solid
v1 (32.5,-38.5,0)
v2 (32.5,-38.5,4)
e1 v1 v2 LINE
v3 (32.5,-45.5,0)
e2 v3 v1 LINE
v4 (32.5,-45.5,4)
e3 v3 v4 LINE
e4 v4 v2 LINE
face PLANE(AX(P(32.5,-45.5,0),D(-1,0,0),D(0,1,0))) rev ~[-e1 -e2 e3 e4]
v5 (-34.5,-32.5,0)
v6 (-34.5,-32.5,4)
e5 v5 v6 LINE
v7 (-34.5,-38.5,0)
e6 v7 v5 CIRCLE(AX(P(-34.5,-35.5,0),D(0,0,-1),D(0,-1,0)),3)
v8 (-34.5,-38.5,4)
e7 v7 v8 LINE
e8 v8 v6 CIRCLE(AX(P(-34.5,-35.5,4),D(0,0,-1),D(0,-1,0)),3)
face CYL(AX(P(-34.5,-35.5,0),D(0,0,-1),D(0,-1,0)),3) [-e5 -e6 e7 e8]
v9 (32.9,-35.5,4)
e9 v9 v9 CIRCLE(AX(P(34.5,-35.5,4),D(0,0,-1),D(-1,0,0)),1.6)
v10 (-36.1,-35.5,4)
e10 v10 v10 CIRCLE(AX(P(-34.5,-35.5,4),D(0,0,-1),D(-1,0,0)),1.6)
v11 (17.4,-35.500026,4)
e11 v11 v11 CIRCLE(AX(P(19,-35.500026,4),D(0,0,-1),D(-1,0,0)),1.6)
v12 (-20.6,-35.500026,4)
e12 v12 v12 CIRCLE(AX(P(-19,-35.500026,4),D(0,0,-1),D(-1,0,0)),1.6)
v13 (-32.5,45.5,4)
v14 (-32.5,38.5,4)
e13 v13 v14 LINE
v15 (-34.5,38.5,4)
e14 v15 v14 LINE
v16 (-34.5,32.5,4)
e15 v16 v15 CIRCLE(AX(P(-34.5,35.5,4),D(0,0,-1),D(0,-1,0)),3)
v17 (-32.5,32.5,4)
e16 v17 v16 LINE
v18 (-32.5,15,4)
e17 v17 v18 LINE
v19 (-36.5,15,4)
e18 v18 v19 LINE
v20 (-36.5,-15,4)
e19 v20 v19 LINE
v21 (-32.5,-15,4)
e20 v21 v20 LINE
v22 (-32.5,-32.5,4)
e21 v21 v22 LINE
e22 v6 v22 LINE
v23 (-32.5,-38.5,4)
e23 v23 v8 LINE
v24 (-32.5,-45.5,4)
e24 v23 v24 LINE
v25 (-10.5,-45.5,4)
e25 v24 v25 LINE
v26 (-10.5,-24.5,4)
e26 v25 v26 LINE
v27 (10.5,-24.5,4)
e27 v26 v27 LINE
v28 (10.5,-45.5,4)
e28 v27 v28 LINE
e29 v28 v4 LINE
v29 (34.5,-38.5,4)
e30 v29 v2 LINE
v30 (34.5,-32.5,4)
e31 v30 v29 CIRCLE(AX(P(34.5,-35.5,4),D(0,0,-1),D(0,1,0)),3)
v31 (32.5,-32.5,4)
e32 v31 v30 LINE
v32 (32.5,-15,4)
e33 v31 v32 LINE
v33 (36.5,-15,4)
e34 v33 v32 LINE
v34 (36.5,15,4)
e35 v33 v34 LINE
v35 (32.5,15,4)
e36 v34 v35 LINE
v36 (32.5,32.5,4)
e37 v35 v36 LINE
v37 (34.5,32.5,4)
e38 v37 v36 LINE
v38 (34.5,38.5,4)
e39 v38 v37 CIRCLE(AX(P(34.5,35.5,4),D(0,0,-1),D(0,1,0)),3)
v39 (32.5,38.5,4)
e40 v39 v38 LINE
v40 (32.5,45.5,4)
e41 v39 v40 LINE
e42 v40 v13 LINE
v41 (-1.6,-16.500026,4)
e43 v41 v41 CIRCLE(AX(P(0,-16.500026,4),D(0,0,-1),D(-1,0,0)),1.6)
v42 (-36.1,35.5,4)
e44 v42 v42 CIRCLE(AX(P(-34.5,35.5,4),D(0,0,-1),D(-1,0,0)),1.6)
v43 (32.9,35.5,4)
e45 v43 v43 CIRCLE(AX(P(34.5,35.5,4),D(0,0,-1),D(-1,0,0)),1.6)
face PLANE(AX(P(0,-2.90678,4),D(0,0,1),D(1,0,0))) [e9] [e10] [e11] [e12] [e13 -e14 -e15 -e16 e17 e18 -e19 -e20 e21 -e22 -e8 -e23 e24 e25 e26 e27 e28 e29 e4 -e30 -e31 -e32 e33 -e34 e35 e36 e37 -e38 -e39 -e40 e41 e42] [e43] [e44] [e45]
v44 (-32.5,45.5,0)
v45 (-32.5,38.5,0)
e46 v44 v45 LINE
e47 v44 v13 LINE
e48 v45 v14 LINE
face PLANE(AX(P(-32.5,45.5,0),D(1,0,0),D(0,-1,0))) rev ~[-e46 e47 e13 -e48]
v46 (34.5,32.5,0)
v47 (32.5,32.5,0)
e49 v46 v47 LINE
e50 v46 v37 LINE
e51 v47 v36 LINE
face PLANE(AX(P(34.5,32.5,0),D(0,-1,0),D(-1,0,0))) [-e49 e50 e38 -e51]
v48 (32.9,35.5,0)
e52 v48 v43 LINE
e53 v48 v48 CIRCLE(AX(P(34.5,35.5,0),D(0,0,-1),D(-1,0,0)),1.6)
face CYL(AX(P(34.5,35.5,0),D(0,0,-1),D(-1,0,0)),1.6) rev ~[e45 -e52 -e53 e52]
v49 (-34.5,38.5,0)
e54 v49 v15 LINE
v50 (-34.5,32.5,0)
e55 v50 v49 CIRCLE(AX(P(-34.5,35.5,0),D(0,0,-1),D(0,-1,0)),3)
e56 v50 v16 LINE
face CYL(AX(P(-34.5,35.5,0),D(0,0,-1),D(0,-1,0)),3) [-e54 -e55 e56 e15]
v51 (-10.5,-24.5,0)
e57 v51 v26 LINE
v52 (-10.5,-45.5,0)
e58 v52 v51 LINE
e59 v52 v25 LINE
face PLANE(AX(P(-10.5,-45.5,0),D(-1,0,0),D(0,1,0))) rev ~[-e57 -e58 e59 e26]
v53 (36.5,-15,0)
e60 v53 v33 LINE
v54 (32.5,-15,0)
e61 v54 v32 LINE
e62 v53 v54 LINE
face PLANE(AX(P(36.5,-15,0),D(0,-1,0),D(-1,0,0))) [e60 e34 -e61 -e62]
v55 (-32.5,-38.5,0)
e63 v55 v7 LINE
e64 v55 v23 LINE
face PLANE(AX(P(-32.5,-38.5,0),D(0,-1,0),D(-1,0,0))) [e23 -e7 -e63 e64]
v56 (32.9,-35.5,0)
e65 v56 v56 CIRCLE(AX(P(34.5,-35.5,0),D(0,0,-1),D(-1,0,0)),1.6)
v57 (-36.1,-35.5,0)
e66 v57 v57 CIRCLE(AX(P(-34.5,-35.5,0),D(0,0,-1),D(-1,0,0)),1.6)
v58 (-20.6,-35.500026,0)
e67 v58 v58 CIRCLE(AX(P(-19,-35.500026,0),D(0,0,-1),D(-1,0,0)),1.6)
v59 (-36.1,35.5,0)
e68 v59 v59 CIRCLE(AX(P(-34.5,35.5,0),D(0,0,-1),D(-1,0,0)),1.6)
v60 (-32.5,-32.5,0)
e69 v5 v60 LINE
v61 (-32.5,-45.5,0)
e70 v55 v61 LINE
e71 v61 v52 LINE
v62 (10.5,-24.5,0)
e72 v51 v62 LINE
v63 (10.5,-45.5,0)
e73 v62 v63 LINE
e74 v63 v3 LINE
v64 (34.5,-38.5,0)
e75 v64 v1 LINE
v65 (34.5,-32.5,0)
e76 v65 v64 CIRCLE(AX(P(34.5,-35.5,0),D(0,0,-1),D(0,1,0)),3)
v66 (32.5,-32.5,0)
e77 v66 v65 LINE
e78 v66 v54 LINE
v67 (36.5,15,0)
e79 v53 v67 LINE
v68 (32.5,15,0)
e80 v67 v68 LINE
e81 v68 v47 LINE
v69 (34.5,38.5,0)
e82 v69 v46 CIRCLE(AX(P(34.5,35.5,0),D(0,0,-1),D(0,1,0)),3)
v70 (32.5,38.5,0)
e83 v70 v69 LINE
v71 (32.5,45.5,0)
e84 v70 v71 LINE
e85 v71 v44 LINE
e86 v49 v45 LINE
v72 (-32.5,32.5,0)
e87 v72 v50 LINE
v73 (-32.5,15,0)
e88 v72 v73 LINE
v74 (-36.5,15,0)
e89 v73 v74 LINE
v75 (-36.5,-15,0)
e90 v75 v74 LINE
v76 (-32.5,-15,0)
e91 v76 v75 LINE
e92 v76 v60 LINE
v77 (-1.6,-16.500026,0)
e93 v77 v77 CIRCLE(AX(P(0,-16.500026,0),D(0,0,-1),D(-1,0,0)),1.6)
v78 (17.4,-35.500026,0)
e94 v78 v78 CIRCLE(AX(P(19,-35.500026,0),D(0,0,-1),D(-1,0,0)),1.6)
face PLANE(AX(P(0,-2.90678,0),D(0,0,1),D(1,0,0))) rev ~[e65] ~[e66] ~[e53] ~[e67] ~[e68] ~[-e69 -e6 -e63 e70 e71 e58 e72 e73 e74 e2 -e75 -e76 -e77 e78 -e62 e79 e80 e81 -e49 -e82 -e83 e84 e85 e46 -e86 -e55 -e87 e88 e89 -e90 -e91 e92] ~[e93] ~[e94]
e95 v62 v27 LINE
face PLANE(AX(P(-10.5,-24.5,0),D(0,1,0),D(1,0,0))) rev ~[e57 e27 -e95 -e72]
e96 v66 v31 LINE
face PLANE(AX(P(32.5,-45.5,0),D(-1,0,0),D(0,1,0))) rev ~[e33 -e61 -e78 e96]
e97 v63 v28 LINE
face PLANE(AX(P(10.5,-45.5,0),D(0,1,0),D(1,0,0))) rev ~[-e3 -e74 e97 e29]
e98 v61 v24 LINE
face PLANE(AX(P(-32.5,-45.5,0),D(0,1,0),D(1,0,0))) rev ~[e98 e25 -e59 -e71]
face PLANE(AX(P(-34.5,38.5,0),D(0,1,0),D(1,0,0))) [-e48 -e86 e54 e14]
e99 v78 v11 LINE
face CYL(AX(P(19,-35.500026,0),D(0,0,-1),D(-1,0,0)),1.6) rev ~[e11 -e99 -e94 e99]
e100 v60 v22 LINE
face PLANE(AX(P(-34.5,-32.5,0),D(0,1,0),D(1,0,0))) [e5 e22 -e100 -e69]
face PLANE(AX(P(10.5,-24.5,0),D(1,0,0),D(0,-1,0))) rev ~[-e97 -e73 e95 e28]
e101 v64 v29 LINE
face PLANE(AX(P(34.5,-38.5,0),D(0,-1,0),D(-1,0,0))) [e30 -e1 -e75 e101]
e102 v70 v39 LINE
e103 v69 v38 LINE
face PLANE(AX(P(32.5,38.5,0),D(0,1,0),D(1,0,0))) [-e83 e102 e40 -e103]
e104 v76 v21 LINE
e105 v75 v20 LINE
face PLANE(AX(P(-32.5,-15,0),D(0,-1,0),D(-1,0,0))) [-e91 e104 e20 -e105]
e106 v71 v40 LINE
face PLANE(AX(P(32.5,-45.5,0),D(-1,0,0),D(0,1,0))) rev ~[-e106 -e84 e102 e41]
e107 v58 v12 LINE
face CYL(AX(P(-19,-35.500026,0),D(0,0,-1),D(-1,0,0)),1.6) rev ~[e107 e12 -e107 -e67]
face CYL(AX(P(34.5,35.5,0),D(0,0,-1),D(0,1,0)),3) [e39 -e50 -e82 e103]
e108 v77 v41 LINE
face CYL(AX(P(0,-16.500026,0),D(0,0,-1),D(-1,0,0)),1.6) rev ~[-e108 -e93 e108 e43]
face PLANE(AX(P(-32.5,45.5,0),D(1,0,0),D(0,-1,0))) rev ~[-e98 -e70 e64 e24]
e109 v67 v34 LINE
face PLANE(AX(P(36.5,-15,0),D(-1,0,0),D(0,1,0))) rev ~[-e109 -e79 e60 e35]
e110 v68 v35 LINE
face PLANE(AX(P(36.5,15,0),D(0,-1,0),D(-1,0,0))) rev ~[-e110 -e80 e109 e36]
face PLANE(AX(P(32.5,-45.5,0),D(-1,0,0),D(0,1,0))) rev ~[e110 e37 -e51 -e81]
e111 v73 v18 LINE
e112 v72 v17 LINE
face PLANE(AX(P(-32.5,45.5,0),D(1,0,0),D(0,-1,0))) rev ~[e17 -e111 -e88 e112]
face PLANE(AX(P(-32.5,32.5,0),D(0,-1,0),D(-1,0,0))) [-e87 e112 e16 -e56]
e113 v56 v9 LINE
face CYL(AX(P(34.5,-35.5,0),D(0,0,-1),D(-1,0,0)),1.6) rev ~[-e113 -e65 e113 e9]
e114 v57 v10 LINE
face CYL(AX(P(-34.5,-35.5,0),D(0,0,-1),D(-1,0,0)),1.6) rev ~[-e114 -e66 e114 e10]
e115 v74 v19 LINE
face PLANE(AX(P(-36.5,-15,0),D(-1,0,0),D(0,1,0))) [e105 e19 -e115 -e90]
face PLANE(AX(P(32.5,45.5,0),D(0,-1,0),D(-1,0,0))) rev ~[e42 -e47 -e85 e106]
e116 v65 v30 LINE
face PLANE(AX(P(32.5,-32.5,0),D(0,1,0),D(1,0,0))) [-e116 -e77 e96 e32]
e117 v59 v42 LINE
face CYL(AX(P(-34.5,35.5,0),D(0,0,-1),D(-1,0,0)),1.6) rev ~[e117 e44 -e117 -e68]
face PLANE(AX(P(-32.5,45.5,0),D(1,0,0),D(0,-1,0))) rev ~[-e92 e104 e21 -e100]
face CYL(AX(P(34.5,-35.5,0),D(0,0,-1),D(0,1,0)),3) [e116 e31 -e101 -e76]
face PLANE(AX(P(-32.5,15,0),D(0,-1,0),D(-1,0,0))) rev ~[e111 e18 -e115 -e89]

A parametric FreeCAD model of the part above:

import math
import FreeCAD as App
import Part
import Sketcher

V = App.Vector

doc = App.newDocument("Part")
body = doc.addObject("PartDesign::Body", "Body")

sketch1 = body.newObject("Sketcher::SketchObject", "Sketch")
sketch1.AttachmentSupport = (doc.getObject("XY_Plane"), [""])
sketch1.MapMode = "FlatFace"
sketch1.addGeometry(Part.LineSegment(V(-10.5, -45.5, 0), V(-10.5, -24.5, 0)), False)
sketch1.addGeometry(Part.LineSegment(V(-10.5, -24.5, 0), V(10.5, -24.5, 0)), False)
sketch1.addGeometry(Part.LineSegment(V(10.5, -24.5, 0), V(10.5, -45.5, 0)), False)
sketch1.addGeometry(Part.LineSegment(V(10.5, -45.5, 0), V(32.5, -45.5, 0)), False)
sketch1.addGeometry(Part.LineSegment(V(32.5, -45.5, 0), V(32.5, 45.5, 0)), False)
sketch1.addGeometry(Part.LineSegment(V(32.5, 45.5, 0), V(-32.5, 45.5, 0)), False)
sketch1.addGeometry(Part.LineSegment(V(-32.5, 45.5, 0), V(-32.5, -45.5, 0)), False)
sketch1.addGeometry(Part.LineSegment(V(-32.5, -45.5, 0), V(-10.5, -45.5, 0)), False)
sketch1.addConstraint(Sketcher.Constraint("Coincident", 0, 2, 1, 1))
sketch1.addConstraint(Sketcher.Constraint("Coincident", 1, 2, 2, 1))
sketch1.addConstraint(Sketcher.Constraint("Coincident", 2, 2, 3, 1))
sketch1.addConstraint(Sketcher.Constraint("Coincident", 3, 2, 4, 1))
sketch1.addConstraint(Sketcher.Constraint("Coincident", 4, 2, 5, 1))
sketch1.addConstraint(Sketcher.Constraint("Coincident", 5, 2, 6, 1))
sketch1.addConstraint(Sketcher.Constraint("Coincident", 6, 2, 7, 1))
sketch1.addConstraint(Sketcher.Constraint("Coincident", 7, 2, 0, 1))
sketch1.addConstraint(Sketcher.Constraint("Vertical", 0))
sketch1.addConstraint(Sketcher.Constraint("Horizontal", 1))
sketch1.addConstraint(Sketcher.Constraint("Vertical", 2))
sketch1.addConstraint(Sketcher.Constraint("Horizontal", 3))
sketch1.addConstraint(Sketcher.Constraint("Vertical", 4))
sketch1.addConstraint(Sketcher.Constraint("Horizontal", 5))
sketch1.addConstraint(Sketcher.Constraint("Vertical", 6))
sketch1.addConstraint(Sketcher.Constraint("Horizontal", 7))
sketch1.addConstraint(Sketcher.Constraint("Symmetric", 3, 2, 5, 2, -1, 1))
sketch1.addConstraint(Sketcher.Constraint("Symmetric", 2, 2, 7, 2, -2))
sketch1.addConstraint(Sketcher.Constraint("Equal", 1, 0))
sketch1.addConstraint(Sketcher.Constraint("DistanceX", 1, 1, 1, 2, 21.0))
sketch1.addConstraint(Sketcher.Constraint("DistanceX", 3, 1, 3, 2, 22.0))
sketch1.addConstraint(Sketcher.Constraint("DistanceY", 4, 1, 4, 2, 91.0))
pad1 = body.newObject("PartDesign::Pad", "Pad")
pad1.Profile = sketch1
pad1.Length = 4

sketch2 = body.newObject("Sketcher::SketchObject", "Sketch001")
sketch2.AttachmentSupport = (doc.getObject("XY_Plane"), [""])
sketch2.MapMode = "FlatFace"
sketch2.addGeometry(Part.Circle(V(-19, -35.500026, 0), V(0, 0, 1), 1.6), False)
sketch2.addGeometry(Part.Circle(V(0, -16.500026, 0), V(0, 0, 1), 1.6), False)
sketch2.addGeometry(Part.Circle(V(19, -35.500026, 0), V(0, 0, 1), 1.6), False)
sketch2.addConstraint(Sketcher.Constraint("Equal", 0, 1))
sketch2.addConstraint(Sketcher.Constraint("Equal", 1, 2))
sketch2.addConstraint(Sketcher.Constraint("Symmetric", 0, 3, 2, 3, -2))
sketch2.addConstraint(Sketcher.Constraint("PointOnObject", 1, 3, -2))
sketch2.addConstraint(Sketcher.Constraint("Diameter", 0, 3.2))
sketch2.addConstraint(Sketcher.Constraint("DistanceX", 0, 3, -1, 1, 19.0))
sketch2.addConstraint(Sketcher.Constraint("DistanceY", 0, 3, 1, 3, 19.0))
sketch2.addConstraint(Sketcher.Constraint("DistanceY", 0, 3, -1, 1, 35.500026))
pocket1 = body.newObject("PartDesign::Pocket", "Pocket")
pocket1.Profile = sketch2
pocket1.Type = "ThroughAll"
pocket1.Reversed = True

sketch3 = body.newObject("Sketcher::SketchObject", "Sketch002")
sketch3.AttachmentSupport = (doc.getObject("XY_Plane"), [""])
sketch3.MapMode = "FlatFace"
sketch3.addGeometry(Part.LineSegment(V(-34.5, 38.5, 0), V(-32.5, 38.5, 0)), False)
sketch3.addGeometry(Part.LineSegment(V(-32.5, 38.5, 0), V(-32.5, 32.5, 0)), False)
sketch3.addGeometry(Part.LineSegment(V(-32.5, 32.5, 0), V(-34.5, 32.5, 0)), False)
sketch3.addGeometry(Part.ArcOfCircle(Part.Circle(V(-34.5, 35.5, 0), V(0, 0, 1), 3), math.radians(90), math.radians(270)), False)
sketch3.addGeometry(Part.Circle(V(-34.5, 35.5, 0), V(0, 0, 1), 1.6), False)
sketch3.addGeometry(Part.LineSegment(V(-34.5, -32.5, 0), V(-32.5, -32.5, 0)), False)
sketch3.addGeometry(Part.LineSegment(V(-32.5, -32.5, 0), V(-32.5, -38.5, 0)), False)
sketch3.addGeometry(Part.LineSegment(V(-32.5, -38.5, 0), V(-34.5, -38.5, 0)), False)
sketch3.addGeometry(Part.ArcOfCircle(Part.Circle(V(-34.5, -35.5, 0), V(0, 0, 1), 3), math.radians(90), math.radians(270)), False)
sketch3.addGeometry(Part.Circle(V(-34.5, -35.5, 0), V(0, 0, 1), 1.6), False)
sketch3.addGeometry(Part.LineSegment(V(34.5, -38.5, 0), V(32.5, -38.5, 0)), False)
sketch3.addGeometry(Part.LineSegment(V(32.5, -38.5, 0), V(32.5, -32.5, 0)), False)
sketch3.addGeometry(Part.LineSegment(V(32.5, -32.5, 0), V(34.5, -32.5, 0)), False)
sketch3.addGeometry(Part.ArcOfCircle(Part.Circle(V(34.5, -35.5, 0), V(0, 0, 1), 3), math.radians(-90), math.radians(90)), False)
sketch3.addGeometry(Part.Circle(V(34.5, -35.5, 0), V(0, 0, 1), 1.6), False)
sketch3.addGeometry(Part.LineSegment(V(34.5, 32.5, 0), V(32.5, 32.5, 0)), False)
sketch3.addGeometry(Part.LineSegment(V(32.5, 32.5, 0), V(32.5, 38.5, 0)), False)
sketch3.addGeometry(Part.LineSegment(V(32.5, 38.5, 0), V(34.5, 38.5, 0)), False)
sketch3.addGeometry(Part.ArcOfCircle(Part.Circle(V(34.5, 35.5, 0), V(0, 0, 1), 3), math.radians(-90), math.radians(90)), False)
sketch3.addGeometry(Part.Circle(V(34.5, 35.5, 0), V(0, 0, 1), 1.6), False)
sketch3.addConstraint(Sketcher.Constraint("Coincident", 0, 2, 1, 1))
sketch3.addConstraint(Sketcher.Constraint("Coincident", 1, 2, 2, 1))
sketch3.addConstraint(Sketcher.Constraint("Tangent", 2, 2, 3, 2))
sketch3.addConstraint(Sketcher.Constraint("Tangent", 3, 1, 0, 1))
sketch3.addConstraint(Sketcher.Constraint("Coincident", 5, 2, 6, 1))
sketch3.addConstraint(Sketcher.Constraint("Coincident", 6, 2, 7, 1))
sketch3.addConstraint(Sketcher.Constraint("Tangent", 7, 2, 8, 2))
sketch3.addConstraint(Sketcher.Constraint("Tangent", 8, 1, 5, 1))
sketch3.addConstraint(Sketcher.Constraint("Coincident", 10, 2, 11, 1))
sketch3.addConstraint(Sketcher.Constraint("Coincident", 11, 2, 12, 1))
sketch3.addConstraint(Sketcher.Constraint("Tangent", 12, 2, 13, 2))
sketch3.addConstraint(Sketcher.Constraint("Tangent", 13, 1, 10, 1))
sketch3.addConstraint(Sketcher.Constraint("Coincident", 15, 2, 16, 1))
sketch3.addConstraint(Sketcher.Constraint("Coincident", 16, 2, 17, 1))
sketch3.addConstraint(Sketcher.Constraint("Tangent", 17, 2, 18, 2))
sketch3.addConstraint(Sketcher.Constraint("Tangent", 18, 1, 15, 1))
sketch3.addConstraint(Sketcher.Constraint("Horizontal", 0))
sketch3.addConstraint(Sketcher.Constraint("Vertical", 1))
sketch3.addConstraint(Sketcher.Constraint("Horizontal", 2))
sketch3.addConstraint(Sketcher.Constraint("Horizontal", 5))
sketch3.addConstraint(Sketcher.Constraint("Vertical", 6))
sketch3.addConstraint(Sketcher.Constraint("Horizontal", 7))
sketch3.addConstraint(Sketcher.Constraint("Horizontal", 10))
sketch3.addConstraint(Sketcher.Constraint("Vertical", 11))
sketch3.addConstraint(Sketcher.Constraint("Horizontal", 12))
sketch3.addConstraint(Sketcher.Constraint("Horizontal", 15))
sketch3.addConstraint(Sketcher.Constraint("Vertical", 16))
sketch3.addConstraint(Sketcher.Constraint("Horizontal", 17))
sketch3.addConstraint(Sketcher.Constraint("Coincident", 4, 3, 3, 3))
sketch3.addConstraint(Sketcher.Constraint("Coincident", 9, 3, 8, 3))
sketch3.addConstraint(Sketcher.Constraint("Coincident", 14, 3, 13, 3))
sketch3.addConstraint(Sketcher.Constraint("Coincident", 19, 3, 18, 3))
sketch3.addConstraint(Sketcher.Constraint("Equal", 3, 8))
sketch3.addConstraint(Sketcher.Constraint("Equal", 4, 9))
sketch3.addConstraint(Sketcher.Constraint("Equal", 8, 13))
sketch3.addConstraint(Sketcher.Constraint("Equal", 9, 14))
sketch3.addConstraint(Sketcher.Constraint("Equal", 13, 18))
sketch3.addConstraint(Sketcher.Constraint("Equal", 14, 19))
sketch3.addConstraint(Sketcher.Constraint("Symmetric", 3, 3, 13, 3, -1, 1))
sketch3.addConstraint(Sketcher.Constraint("Symmetric", 8, 3, 18, 3, -1, 1))
sketch3.addConstraint(Sketcher.Constraint("Symmetric", 8, 3, 13, 3, -2))
sketch3.addConstraint(Sketcher.Constraint("Vertical", 1, 2, 5, 2))
sketch3.addConstraint(Sketcher.Constraint("Vertical", 11, 2, 15, 2))
sketch3.addConstraint(Sketcher.Constraint("Equal", 7, 10))
sketch3.addConstraint(Sketcher.Constraint("Radius", 3, 3.0))
sketch3.addConstraint(Sketcher.Constraint("Diameter", 4, 3.2))
sketch3.addConstraint(Sketcher.Constraint("DistanceX", 0, 1, 0, 2, 2.0))
sketch3.addConstraint(Sketcher.Constraint("DistanceY", 8, 3, 3, 3, 71.0))
sketch3.addConstraint(Sketcher.Constraint("DistanceX", 8, 3, 13, 3, 69.0))
pad2 = body.newObject("PartDesign::Pad", "Pad001")
pad2.Profile = sketch3
pad2.Length = 4

sketch4 = body.newObject("Sketcher::SketchObject", "Sketch003")
sketch4.AttachmentSupport = (doc.getObject("XY_Plane"), [""])
sketch4.MapMode = "FlatFace"
sketch4.addGeometry(Part.LineSegment(V(-32.5, 15, 0), V(-32.5, -15, 0)), False)
sketch4.addGeometry(Part.LineSegment(V(-32.5, -15, 0), V(-36.5, -15, 0)), False)
sketch4.addGeometry(Part.LineSegment(V(-36.5, -15, 0), V(-36.5, 15, 0)), False)
sketch4.addGeometry(Part.LineSegment(V(-36.5, 15, 0), V(-32.5, 15, 0)), False)
sketch4.addGeometry(Part.LineSegment(V(36.5, 15, 0), V(36.5, -15, 0)), False)
sketch4.addGeometry(Part.LineSegment(V(36.5, -15, 0), V(32.5, -15, 0)), False)
sketch4.addGeometry(Part.LineSegment(V(32.5, -15, 0), V(32.5, 15, 0)), False)
sketch4.addGeometry(Part.LineSegment(V(32.5, 15, 0), V(36.5, 15, 0)), False)
sketch4.addConstraint(Sketcher.Constraint("Coincident", 0, 2, 1, 1))
sketch4.addConstraint(Sketcher.Constraint("Coincident", 1, 2, 2, 1))
sketch4.addConstraint(Sketcher.Constraint("Coincident", 2, 2, 3, 1))
sketch4.addConstraint(Sketcher.Constraint("Coincident", 3, 2, 0, 1))
sketch4.addConstraint(Sketcher.Constraint("Coincident", 4, 2, 5, 1))
sketch4.addConstraint(Sketcher.Constraint("Coincident", 5, 2, 6, 1))
sketch4.addConstraint(Sketcher.Constraint("Coincident", 6, 2, 7, 1))
sketch4.addConstraint(Sketcher.Constraint("Coincident", 7, 2, 4, 1))
sketch4.addConstraint(Sketcher.Constraint("Vertical", 0))
sketch4.addConstraint(Sketcher.Constraint("Horizontal", 1))
sketch4.addConstraint(Sketcher.Constraint("Vertical", 2))
sketch4.addConstraint(Sketcher.Constraint("Horizontal", 3))
sketch4.addConstraint(Sketcher.Constraint("Vertical", 4))
sketch4.addConstraint(Sketcher.Constraint("Horizontal", 5))
sketch4.addConstraint(Sketcher.Constraint("Vertical", 6))
sketch4.addConstraint(Sketcher.Constraint("Horizontal", 7))
sketch4.addConstraint(Sketcher.Constraint("Symmetric", 2, 2, 4, 2, -1, 1))
sketch4.addConstraint(Sketcher.Constraint("Symmetric", 0, 2, 6, 2, -1, 1))
sketch4.addConstraint(Sketcher.Constraint("Horizontal", 1, 2, 4, 2))
sketch4.addConstraint(Sketcher.Constraint("DistanceX", 1, 2, 1, 1, 4.0))
sketch4.addConstraint(Sketcher.Constraint("DistanceY", 0, 2, 0, 1, 30.0))
sketch4.addConstraint(Sketcher.Constraint("DistanceX", 0, 2, 4, 2, 69.0))
pad3 = body.newObject("PartDesign::Pad", "Pad002")
pad3.Profile = sketch4
pad3.Length = 4

doc.recompute()
